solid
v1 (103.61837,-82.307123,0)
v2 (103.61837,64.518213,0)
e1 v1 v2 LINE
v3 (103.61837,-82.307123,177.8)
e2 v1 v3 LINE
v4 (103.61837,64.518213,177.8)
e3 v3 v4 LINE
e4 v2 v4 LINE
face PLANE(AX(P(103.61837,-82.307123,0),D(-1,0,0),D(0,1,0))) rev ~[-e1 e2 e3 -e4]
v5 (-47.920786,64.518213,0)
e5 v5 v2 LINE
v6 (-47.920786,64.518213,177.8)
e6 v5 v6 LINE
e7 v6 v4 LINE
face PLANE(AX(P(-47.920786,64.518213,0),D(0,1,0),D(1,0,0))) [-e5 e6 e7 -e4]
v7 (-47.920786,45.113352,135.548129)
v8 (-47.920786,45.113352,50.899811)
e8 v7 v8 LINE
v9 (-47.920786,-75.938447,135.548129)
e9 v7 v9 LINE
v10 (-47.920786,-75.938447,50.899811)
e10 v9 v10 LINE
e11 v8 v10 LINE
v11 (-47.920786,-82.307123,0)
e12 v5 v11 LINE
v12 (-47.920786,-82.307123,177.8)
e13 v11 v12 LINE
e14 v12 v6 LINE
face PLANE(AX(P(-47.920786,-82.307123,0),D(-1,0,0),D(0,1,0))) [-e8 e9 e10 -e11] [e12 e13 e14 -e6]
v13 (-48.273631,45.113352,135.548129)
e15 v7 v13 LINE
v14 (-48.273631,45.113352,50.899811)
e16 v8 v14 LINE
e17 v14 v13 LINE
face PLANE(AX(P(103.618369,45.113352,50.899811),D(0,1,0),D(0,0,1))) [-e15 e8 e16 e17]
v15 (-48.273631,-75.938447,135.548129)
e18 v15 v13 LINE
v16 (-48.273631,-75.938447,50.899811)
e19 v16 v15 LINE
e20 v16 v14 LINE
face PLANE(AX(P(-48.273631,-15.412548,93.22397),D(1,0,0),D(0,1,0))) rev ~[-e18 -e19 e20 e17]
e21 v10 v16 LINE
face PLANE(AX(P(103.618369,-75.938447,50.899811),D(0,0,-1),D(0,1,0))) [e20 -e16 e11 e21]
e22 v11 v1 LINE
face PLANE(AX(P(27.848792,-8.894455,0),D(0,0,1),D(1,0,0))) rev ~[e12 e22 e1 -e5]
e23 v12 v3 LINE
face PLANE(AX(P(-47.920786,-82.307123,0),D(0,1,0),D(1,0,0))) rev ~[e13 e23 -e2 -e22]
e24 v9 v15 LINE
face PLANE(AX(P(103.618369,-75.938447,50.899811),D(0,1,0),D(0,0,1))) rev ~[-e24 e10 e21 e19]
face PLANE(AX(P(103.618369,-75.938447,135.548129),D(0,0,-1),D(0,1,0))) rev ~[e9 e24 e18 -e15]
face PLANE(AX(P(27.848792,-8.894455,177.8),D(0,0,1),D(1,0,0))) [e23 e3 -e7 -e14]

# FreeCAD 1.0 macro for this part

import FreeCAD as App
import Part
import Sketcher

V = App.Vector
Q = App.Units.Quantity


def add_polygon(sketch, points):
    """Adds a closed chain of lines whose ends are joined by coincident constraints."""
    first, n = sketch.GeometryCount, len(points)
    for a, b in zip(points, points[1:] + points[:1]):
        sketch.addGeometry(Part.LineSegment(App.Vector(*a, 0), App.Vector(*b, 0)), False)
    for i in range(n):
        sketch.addConstraint(Sketcher.Constraint("Coincident", first + i, 2, first + (i + 1) % n, 1))

doc = App.newDocument("Part")
params = doc.addObject("Spreadsheet::Sheet", "Params")
for row, (alias, value) in enumerate([
    ("pad1_length", "7 in"),
    ("pad2_length", "1.5 in"),
    ("pad3_length", "1 in"),
    ("pad4_length", "5.98 in"),
], start=1):
    params.set(f"A{row}", alias)
    params.set(f"B{row}", "=" + value)
    params.setAlias(f"B{row}", alias)

body = doc.addObject("PartDesign::Body", "Body")

sketch1 = doc.addObject("Sketcher::SketchObject", "Sketch")
body.addObject(sketch1)
sketch1.AttachmentSupport = (doc.XY_Plane, [""])
sketch1.MapMode = "FlatFace"
add_polygon(sketch1, [(-48, 65), (-48, -82), (104, -82), (104, 65)])
sketch1.addConstraint(Sketcher.Constraint("Vertical", 0))
sketch1.addConstraint(Sketcher.Constraint("Horizontal", 1))
sketch1.addConstraint(Sketcher.Constraint("Vertical", 2))
sketch1.addConstraint(Sketcher.Constraint("Horizontal", 3))
sketch1.addConstraint(Sketcher.Constraint("DistanceX", 1, 1, 1, 2, Q("151.539155 mm")))
sketch1.addConstraint(Sketcher.Constraint("DistanceY", 0, 2, 0, 1, Q("146.825336 mm")))
sketch1.addConstraint(Sketcher.Constraint("DistanceX", -1, 1, 1, 2, Q("103.61837 mm")))
sketch1.addConstraint(Sketcher.Constraint("DistanceY", 0, 2, -1, 1, Q("82.307123 mm")))
pad1 = doc.addObject("PartDesign::Pad", "Pad")
body.addObject(pad1)
pad1.Profile = sketch1
pad1.setExpression("Length", "Params.pad1_length")

sketch2 = doc.addObject("Sketcher::SketchObject", "Sketch001")
body.addObject(sketch2)
sketch2.AttachmentSupport = (doc.YZ_Plane, [""])
sketch2.MapMode = "FlatFace"
sketch2.AttachmentOffset = App.Placement(V(0, 0, -47.920786), App.Rotation())
add_polygon(sketch2, [(-32, 104), (31, 104), (29, 0), (-32, 0)])
sketch2.addConstraint(Sketcher.Constraint("Horizontal", 0))
sketch2.addConstraint(Sketcher.Constraint("Horizontal", 2))
sketch2.addConstraint(Sketcher.Constraint("Vertical", 3))
sketch2.addConstraint(Sketcher.Constraint("PointOnObject", 1, 2, -1))
sketch2.addConstraint(Sketcher.Constraint("DistanceX", 2, 2, 2, 1, Q("61.258379 mm")))
sketch2.addConstraint(Sketcher.Constraint("DistanceY", 3, 1, 3, 2, Q("103.963971 mm")))
sketch2.addConstraint(Sketcher.Constraint("DistanceX", 0, 1, 0, 2, Q("63.355185 mm")))
sketch2.addConstraint(Sketcher.Constraint("DistanceX", -1, 1, 0, 2, Q("31.454742 mm")))
pad2 = doc.addObject("PartDesign::Pad", "Pad001")
body.addObject(pad2)
pad2.Profile = sketch2
pad2.setExpression("Length", "Params.pad2_length")

sketch3 = doc.addObject("Sketcher::SketchObject", "Sketch002")
body.addObject(sketch3)
sketch3.AttachmentSupport = (doc.YZ_Plane, [""])
sketch3.MapMode = "FlatFace"
sketch3.AttachmentOffset = App.Placement(V(0, 0, 103.618369), App.Rotation())
add_polygon(sketch3, [(-56, 155), (-56, 26), (45, 26), (45, 155)])
sketch3.addConstraint(Sketcher.Constraint("Vertical", 0))
sketch3.addConstraint(Sketcher.Constraint("Horizontal", 1))
sketch3.addConstraint(Sketcher.Constraint("Vertical", 2))
sketch3.addConstraint(Sketcher.Constraint("Horizontal", 3))
sketch3.addConstraint(Sketcher.Constraint("DistanceX", 1, 1, 1, 2, Q("100.581736 mm")))
sketch3.addConstraint(Sketcher.Constraint("DistanceY", 0, 2, 0, 1, Q("129.213843 mm")))
sketch3.addConstraint(Sketcher.Constraint("DistanceX", 0, 2, -1, 1, Q("55.885848 mm")))
sketch3.addConstraint(Sketcher.Constraint("DistanceY", -1, 1, 0, 2, Q("26.014861 mm")))
pad3 = doc.addObject("PartDesign::Pad", "Pad002")
body.addObject(pad3)
pad3.Profile = sketch3
pad3.setExpression("Length", "Params.pad3_length")
pad3.Reversed = True

sketch4 = doc.addObject("Sketcher::SketchObject", "Sketch003")
body.addObject(sketch4)
sketch4.AttachmentSupport = (doc.YZ_Plane, [""])
sketch4.MapMode = "FlatFace"
sketch4.AttachmentOffset = App.Placement(V(0, 0, 103.618369), App.Rotation())
add_polygon(sketch4, [(-76, 136), (-76, 51), (45, 51), (45, 136)])
sketch4.addConstraint(Sketcher.Constraint("Vertical", 0))
sketch4.addConstraint(Sketcher.Constraint("Horizontal", 1))
sketch4.addConstraint(Sketcher.Constraint("Vertical", 2))
sketch4.addConstraint(Sketcher.Constraint("Horizontal", 3))
sketch4.addConstraint(Sketcher.Constraint("DistanceX", 1, 1, 1, 2, Q("121.051799 mm")))
sketch4.addConstraint(Sketcher.Constraint("DistanceY", 0, 2, 0, 1, Q("84.648319 mm")))
sketch4.addConstraint(Sketcher.Constraint("DistanceY", -1, 1, 0, 2, Q("50.899811 mm")))
sketch4.addConstraint(Sketcher.Constraint("DistanceX", -1, 1, 1, 2, Q("45.113352 mm")))
pad4 = doc.addObject("PartDesign::Pad", "Pad003")
body.addObject(pad4)
pad4.Profile = sketch4
pad4.setExpression("Length", "Params.pad4_length")
pad4.Reversed = True

doc.recompute()
